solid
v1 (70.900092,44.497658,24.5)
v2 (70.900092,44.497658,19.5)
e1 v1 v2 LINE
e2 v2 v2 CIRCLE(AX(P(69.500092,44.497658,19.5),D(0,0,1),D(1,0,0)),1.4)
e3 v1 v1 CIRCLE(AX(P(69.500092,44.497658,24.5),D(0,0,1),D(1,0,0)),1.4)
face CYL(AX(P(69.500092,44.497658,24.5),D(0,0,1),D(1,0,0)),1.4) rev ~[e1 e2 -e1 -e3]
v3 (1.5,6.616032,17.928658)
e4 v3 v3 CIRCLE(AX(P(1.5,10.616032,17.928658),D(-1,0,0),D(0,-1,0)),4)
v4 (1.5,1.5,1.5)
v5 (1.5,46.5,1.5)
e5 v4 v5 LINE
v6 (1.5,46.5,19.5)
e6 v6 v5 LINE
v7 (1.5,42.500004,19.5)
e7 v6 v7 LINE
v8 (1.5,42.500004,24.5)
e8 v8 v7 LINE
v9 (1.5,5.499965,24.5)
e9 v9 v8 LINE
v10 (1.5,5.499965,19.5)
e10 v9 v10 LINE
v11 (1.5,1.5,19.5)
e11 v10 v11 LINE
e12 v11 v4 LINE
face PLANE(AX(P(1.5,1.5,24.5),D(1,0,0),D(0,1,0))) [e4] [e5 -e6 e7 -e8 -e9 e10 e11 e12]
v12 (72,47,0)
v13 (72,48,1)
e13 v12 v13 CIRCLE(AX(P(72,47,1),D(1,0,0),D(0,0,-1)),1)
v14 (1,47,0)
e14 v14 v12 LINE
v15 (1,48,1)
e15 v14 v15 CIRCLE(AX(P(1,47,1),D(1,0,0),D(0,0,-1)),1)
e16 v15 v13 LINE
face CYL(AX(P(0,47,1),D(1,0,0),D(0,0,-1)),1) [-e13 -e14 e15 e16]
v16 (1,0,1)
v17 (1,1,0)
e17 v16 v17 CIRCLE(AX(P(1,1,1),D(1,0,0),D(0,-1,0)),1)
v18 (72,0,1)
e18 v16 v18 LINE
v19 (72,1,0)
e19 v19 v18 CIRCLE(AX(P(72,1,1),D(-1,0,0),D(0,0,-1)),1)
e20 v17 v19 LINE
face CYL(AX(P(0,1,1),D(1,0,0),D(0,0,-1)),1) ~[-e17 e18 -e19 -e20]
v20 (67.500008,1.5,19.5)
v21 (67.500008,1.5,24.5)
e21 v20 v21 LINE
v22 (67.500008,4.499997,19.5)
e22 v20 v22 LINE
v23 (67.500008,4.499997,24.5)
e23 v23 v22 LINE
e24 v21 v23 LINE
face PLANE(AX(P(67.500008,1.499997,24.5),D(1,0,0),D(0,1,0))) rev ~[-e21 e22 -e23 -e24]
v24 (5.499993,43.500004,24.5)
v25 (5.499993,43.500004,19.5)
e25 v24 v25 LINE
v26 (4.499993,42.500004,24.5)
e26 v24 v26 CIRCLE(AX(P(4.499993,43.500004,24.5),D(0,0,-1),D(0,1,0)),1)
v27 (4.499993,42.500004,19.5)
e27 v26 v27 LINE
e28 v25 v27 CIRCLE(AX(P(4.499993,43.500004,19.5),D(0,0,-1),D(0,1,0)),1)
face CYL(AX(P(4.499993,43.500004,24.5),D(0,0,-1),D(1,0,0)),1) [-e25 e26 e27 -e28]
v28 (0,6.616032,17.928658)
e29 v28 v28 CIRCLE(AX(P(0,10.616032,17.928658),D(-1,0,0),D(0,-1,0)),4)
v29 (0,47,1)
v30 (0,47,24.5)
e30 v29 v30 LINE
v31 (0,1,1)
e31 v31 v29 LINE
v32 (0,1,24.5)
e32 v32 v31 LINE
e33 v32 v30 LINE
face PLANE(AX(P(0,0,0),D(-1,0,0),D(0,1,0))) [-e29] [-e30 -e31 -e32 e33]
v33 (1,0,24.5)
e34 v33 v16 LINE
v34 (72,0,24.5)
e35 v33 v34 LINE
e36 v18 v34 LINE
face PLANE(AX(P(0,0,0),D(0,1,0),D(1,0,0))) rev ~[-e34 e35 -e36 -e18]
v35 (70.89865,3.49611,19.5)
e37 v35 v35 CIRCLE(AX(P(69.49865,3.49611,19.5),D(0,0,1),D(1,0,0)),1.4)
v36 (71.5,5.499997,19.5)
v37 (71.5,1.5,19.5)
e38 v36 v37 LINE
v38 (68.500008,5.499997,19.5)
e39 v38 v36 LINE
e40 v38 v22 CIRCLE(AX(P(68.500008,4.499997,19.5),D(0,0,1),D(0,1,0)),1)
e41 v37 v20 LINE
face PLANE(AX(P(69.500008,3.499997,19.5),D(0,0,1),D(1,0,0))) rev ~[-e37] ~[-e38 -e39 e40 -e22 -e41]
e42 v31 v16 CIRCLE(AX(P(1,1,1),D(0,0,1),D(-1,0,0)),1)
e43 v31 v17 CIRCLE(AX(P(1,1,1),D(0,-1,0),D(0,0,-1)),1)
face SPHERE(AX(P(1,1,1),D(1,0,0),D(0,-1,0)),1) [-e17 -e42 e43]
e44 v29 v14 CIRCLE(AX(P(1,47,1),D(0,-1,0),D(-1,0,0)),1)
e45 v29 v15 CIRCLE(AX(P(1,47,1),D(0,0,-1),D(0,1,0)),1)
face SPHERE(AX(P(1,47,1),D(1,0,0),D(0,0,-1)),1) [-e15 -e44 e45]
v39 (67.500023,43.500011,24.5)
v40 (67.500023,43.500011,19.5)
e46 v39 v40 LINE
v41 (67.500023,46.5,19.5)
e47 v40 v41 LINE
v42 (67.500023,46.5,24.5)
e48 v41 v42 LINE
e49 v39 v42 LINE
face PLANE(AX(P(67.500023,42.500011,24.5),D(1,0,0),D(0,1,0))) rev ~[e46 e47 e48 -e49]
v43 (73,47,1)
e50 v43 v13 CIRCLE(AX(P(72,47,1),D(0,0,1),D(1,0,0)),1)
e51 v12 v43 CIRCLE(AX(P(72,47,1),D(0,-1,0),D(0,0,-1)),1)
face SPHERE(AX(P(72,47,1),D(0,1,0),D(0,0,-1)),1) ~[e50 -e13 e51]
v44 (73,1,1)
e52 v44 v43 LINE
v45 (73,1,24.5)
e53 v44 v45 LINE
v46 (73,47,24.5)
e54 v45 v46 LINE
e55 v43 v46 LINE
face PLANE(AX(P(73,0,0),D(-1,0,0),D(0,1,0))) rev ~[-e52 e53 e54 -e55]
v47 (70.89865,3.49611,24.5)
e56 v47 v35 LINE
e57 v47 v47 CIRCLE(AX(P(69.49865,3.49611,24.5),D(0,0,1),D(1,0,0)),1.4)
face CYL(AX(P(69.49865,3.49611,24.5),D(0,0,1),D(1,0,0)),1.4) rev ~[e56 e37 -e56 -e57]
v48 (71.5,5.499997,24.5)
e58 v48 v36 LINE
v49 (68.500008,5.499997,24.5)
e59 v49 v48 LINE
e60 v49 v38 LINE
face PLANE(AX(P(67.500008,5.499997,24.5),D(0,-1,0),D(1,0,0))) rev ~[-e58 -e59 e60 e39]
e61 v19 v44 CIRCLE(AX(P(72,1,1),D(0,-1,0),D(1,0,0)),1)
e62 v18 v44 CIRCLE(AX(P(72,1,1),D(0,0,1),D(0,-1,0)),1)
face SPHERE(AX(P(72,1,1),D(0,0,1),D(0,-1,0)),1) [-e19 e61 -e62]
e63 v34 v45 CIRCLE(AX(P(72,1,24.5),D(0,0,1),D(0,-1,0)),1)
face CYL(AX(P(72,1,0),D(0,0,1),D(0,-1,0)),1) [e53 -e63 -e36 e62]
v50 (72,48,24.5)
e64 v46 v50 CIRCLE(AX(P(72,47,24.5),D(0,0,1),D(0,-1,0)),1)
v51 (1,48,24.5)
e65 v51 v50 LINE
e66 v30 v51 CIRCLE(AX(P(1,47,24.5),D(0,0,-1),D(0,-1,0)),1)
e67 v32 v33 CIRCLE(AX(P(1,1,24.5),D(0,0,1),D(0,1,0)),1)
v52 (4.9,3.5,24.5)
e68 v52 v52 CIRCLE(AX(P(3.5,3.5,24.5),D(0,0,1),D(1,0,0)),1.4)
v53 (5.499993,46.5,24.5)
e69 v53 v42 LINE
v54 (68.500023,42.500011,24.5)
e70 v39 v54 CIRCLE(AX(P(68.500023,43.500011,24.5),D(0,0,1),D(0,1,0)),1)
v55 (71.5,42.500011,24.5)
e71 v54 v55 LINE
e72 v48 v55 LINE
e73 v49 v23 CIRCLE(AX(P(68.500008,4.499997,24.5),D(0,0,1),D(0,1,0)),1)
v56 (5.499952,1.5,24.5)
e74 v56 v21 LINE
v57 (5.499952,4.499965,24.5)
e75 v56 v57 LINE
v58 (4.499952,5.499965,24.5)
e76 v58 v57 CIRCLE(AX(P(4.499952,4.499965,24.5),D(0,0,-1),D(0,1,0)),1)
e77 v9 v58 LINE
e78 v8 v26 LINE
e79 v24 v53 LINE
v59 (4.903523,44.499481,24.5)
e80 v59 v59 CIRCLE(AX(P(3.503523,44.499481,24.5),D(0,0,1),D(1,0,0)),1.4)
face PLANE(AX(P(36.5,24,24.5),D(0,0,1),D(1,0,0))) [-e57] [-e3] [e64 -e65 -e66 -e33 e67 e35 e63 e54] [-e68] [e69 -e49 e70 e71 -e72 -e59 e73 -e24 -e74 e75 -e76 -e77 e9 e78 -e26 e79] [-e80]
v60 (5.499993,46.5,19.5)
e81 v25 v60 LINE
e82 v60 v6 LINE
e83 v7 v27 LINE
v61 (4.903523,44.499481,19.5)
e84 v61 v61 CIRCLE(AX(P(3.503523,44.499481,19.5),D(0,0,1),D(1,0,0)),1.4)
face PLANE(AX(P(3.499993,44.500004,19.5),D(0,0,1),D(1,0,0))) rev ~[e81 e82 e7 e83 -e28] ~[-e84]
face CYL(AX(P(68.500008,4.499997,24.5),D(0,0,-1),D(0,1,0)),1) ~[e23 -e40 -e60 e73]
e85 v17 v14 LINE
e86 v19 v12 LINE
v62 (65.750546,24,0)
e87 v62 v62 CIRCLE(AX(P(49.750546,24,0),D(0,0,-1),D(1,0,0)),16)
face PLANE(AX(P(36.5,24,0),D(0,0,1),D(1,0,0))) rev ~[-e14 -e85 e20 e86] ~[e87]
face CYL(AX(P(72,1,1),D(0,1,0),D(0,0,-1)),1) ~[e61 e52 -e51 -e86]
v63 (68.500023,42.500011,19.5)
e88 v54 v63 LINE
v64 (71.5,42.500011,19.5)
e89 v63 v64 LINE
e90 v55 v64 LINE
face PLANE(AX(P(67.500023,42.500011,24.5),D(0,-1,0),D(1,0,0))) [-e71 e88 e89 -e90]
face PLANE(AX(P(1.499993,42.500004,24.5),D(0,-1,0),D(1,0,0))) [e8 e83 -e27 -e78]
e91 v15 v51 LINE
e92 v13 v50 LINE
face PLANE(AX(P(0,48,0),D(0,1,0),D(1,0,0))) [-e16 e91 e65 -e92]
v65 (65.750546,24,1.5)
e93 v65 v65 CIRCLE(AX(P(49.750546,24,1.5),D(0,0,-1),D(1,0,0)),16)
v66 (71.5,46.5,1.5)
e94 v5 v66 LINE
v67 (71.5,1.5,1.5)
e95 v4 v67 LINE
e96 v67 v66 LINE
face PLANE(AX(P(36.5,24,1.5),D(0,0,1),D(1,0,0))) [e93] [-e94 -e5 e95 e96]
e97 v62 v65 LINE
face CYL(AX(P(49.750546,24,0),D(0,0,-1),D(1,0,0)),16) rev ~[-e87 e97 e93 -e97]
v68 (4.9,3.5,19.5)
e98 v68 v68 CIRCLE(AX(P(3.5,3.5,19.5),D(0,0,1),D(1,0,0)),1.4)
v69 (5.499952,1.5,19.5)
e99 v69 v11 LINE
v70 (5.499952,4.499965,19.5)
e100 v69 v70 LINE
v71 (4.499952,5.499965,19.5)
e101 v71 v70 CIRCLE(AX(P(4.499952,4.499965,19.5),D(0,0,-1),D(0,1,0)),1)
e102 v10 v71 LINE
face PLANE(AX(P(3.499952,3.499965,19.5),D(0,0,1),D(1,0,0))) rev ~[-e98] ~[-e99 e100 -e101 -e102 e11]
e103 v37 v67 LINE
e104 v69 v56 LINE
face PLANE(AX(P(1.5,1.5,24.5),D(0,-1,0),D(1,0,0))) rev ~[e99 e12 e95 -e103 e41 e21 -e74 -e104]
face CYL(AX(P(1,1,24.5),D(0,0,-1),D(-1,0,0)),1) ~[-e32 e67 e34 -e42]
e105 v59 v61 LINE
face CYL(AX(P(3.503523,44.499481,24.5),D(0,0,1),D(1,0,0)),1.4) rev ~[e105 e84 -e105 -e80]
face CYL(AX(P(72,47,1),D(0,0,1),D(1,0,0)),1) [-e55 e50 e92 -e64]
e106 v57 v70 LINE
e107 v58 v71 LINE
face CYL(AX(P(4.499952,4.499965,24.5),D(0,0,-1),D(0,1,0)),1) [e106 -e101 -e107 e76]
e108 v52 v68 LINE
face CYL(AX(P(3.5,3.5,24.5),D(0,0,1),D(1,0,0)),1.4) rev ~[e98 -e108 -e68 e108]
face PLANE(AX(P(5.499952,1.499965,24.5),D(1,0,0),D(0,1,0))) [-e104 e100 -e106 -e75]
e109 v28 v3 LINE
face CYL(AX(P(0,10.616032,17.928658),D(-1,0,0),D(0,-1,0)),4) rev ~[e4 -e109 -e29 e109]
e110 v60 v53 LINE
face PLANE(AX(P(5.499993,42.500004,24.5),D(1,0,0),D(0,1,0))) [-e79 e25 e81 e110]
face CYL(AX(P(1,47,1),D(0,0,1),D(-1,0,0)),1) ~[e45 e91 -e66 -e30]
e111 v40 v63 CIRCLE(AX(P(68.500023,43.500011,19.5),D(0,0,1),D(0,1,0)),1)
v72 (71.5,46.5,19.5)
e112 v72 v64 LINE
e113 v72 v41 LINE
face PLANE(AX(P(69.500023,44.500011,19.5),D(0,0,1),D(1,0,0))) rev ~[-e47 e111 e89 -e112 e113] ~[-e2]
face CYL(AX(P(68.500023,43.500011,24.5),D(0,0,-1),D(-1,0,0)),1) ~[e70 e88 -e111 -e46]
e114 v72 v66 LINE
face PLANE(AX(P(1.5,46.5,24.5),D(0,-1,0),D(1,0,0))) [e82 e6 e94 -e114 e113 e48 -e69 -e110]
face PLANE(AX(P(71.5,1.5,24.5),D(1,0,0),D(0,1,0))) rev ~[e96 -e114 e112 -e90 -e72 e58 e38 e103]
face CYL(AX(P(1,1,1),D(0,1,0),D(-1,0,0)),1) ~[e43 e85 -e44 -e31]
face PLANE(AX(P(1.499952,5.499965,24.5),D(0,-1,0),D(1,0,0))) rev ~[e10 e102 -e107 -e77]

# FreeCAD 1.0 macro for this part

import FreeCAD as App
import Part
import Sketcher

V = App.Vector
Q = App.Units.Quantity


def edges_at(feature, points):
    """Names of the edges that pass closest to the given points."""
    edges = feature.Shape.Edges
    near = lambda p: min(range(len(edges)), key=lambda i: edges[i].distToShape(Part.Vertex(*p))[0])
    return sorted({f"Edge{near(p) + 1}" for p in points})


def add_polygon(sketch, points):
    """Adds a closed chain of lines whose ends are joined by coincident constraints."""
    first, n = sketch.GeometryCount, len(points)
    for a, b in zip(points, points[1:] + points[:1]):
        sketch.addGeometry(Part.LineSegment(App.Vector(*a, 0), App.Vector(*b, 0)), False)
    for i in range(n):
        sketch.addConstraint(Sketcher.Constraint("Coincident", first + i, 2, first + (i + 1) % n, 1))

doc = App.newDocument("Part")
body = doc.addObject("PartDesign::Body", "Body")

sketch1 = body.newObject("Sketcher::SketchObject", "Sketch")
sketch1.AttachmentSupport = (doc.getObject("XY_Plane"), [""])
sketch1.MapMode = "FlatFace"
add_polygon(sketch1, [(0, 48), (0, 0), (73, 0), (73, 48)])
sketch1.addConstraint([
    Sketcher.Constraint("Vertical", 0),
    Sketcher.Constraint("Horizontal", 1),
    Sketcher.Constraint("Vertical", 2),
    Sketcher.Constraint("Horizontal", 3),
    Sketcher.Constraint("Coincident", 0, 2, -1, 1),
    Sketcher.Constraint("DistanceX", 1, 1, 1, 2, Q("73 mm")),
    Sketcher.Constraint("DistanceY", 0, 2, 0, 1, Q("48 mm")),
])
pad1 = body.newObject("PartDesign::Pad", "Pad")
pad1.Profile = sketch1
pad1.Length = 24.5

sketch2 = body.newObject("Sketcher::SketchObject", "Sketch001")
sketch2.AttachmentSupport = (doc.getObject("XY_Plane"), [""])
sketch2.MapMode = "FlatFace"
sketch2.AttachmentOffset = App.Placement(V(0, 0, 24.5), App.Rotation())
add_polygon(sketch2, [(2, 46), (2, 2), (72, 2), (72, 46)])
sketch2.addConstraint([
    Sketcher.Constraint("Vertical", 0),
    Sketcher.Constraint("Horizontal", 1),
    Sketcher.Constraint("Vertical", 2),
    Sketcher.Constraint("Horizontal", 3),
    Sketcher.Constraint("DistanceX", 1, 1, 1, 2, Q("70 mm")),
    Sketcher.Constraint("DistanceY", 0, 2, 0, 1, Q("45 mm")),
    Sketcher.Constraint("DistanceX", -1, 1, 0, 2, Q("1.5 mm")),
    Sketcher.Constraint("DistanceY", -1, 1, 0, 2, Q("1.5 mm")),
])
pocket1 = body.newObject("PartDesign::Pocket", "Pocket")
pocket1.Profile = sketch2
pocket1.Length = 23
doc.recompute()

fillet = body.newObject("PartDesign::Fillet", "Fillet")
fillet.Base = (pocket1, edges_at(pocket1, [(73, 0, 12.25)]))
fillet.Radius = 1
doc.recompute()

fillet2 = body.newObject("PartDesign::Fillet", "Fillet001")
fillet2.Base = (fillet, edges_at(fillet, [(73, 24.5, 0)]))
fillet2.Radius = 1
doc.recompute()

fillet3 = body.newObject("PartDesign::Fillet", "Fillet002")
fillet3.Base = (fillet2, edges_at(fillet2, [(36, 48, 0)]))
fillet3.Radius = 1
doc.recompute()

fillet4 = body.newObject("PartDesign::Fillet", "Fillet003")
fillet4.Base = (fillet3, edges_at(fillet3, [(0, 24, 0)]))
fillet4.Radius = 1

sketch3 = body.newObject("Sketcher::SketchObject", "Sketch002")
sketch3.AttachmentSupport = (doc.getObject("XY_Plane"), [""])
sketch3.MapMode = "FlatFace"
sketch3.AttachmentOffset = App.Placement(V(0, 0, 24.5), App.Rotation())
add_polygon(sketch3, [(1.5, 5.5), (1.5, 1.5), (5.5, 1.5), (5.5, 5.5)])
sketch3.addConstraint([
    Sketcher.Constraint("Vertical", 0),
    Sketcher.Constraint("Horizontal", 1),
    Sketcher.Constraint("Vertical", 2),
    Sketcher.Constraint("Horizontal", 3),
    Sketcher.Constraint("Equal", 3, 0),
    Sketcher.Constraint("DistanceX", 1, 1, 1, 2, Q("4 mm")),
    Sketcher.Constraint("DistanceX", -1, 1, 0, 2, Q("1.499952 mm")),
    Sketcher.Constraint("DistanceY", -1, 1, 0, 2, Q("1.499965 mm")),
])
pad2 = body.newObject("PartDesign::Pad", "Pad001")
pad2.Profile = sketch3
pad2.Length = 5
pad2.Reversed = True
doc.recompute()

fillet5 = body.newObject("PartDesign::Fillet", "Fillet004")
fillet5.Base = (pad2, edges_at(pad2, [(5.5, 5.5, 22)]))
fillet5.Radius = 1

sketch4 = body.newObject("Sketcher::SketchObject", "Sketch003")
sketch4.AttachmentSupport = (doc.getObject("XY_Plane"), [""])
sketch4.MapMode = "FlatFace"
sketch4.AttachmentOffset = App.Placement(V(0, 0, 24.5), App.Rotation())
add_polygon(sketch4, [(1.5, 46.5), (1.5, 42.5), (5.5, 42.5), (5.5, 46.5)])
add_polygon(sketch4, [(67.5, 46.5), (67.5, 42.5), (71.5, 42.5), (71.5, 46.5)])
add_polygon(sketch4, [(67.5, 5.5), (67.5, 1.5), (71.5, 1.5), (71.5, 5.5)])
sketch4.addConstraint([
    Sketcher.Constraint("Vertical", 0),
    Sketcher.Constraint("Horizontal", 1),
    Sketcher.Constraint("Vertical", 2),
    Sketcher.Constraint("Horizontal", 3),
    Sketcher.Constraint("Vertical", 4),
    Sketcher.Constraint("Horizontal", 5),
    Sketcher.Constraint("Vertical", 6),
    Sketcher.Constraint("Horizontal", 7),
    Sketcher.Constraint("Vertical", 8),
    Sketcher.Constraint("Horizontal", 9),
    Sketcher.Constraint("Vertical", 10),
    Sketcher.Constraint("Horizontal", 11),
    Sketcher.Constraint("Equal", 3, 5),
    Sketcher.Constraint("Equal", 7, 9),
    Sketcher.Constraint("Equal", 11, 0),
    Sketcher.Constraint("Equal", 2, 4),
    Sketcher.Constraint("Equal", 6, 8),
    Sketcher.Constraint("DistanceX", 1, 1, 1, 2, Q("4 mm")),
    Sketcher.Constraint("DistanceY", -1, 1, 4, 2, Q("42.500011 mm")),
    Sketcher.Constraint("DistanceX", 1, 2, 4, 2, Q("62.00003 mm")),
    Sketcher.Constraint("DistanceX", -1, 1, 0, 2, Q("1.499993 mm")),
    Sketcher.Constraint("DistanceY", -1, 1, 0, 2, Q("42.500004 mm")),
    Sketcher.Constraint("DistanceX", -1, 1, 8, 2, Q("67.500008 mm")),
    Sketcher.Constraint("DistanceY", -1, 1, 8, 2, Q("1.499997 mm")),
])
pad3 = body.newObject("PartDesign::Pad", "Pad002")
pad3.Profile = sketch4
pad3.Length = 5
pad3.Reversed = True

sketch5 = body.newObject("Sketcher::SketchObject", "Sketch004")
sketch5.AttachmentSupport = (doc.getObject("XY_Plane"), [""])
sketch5.MapMode = "FlatFace"
sketch5.AttachmentOffset = App.Placement(V(0, 0, 24.5), App.Rotation())
sketch5.addGeometry([
    Part.Circle(V(3.5, 44.5, 0), V(0, 0, 1), 1.4),
    Part.Circle(V(69.5, 44.5, 0), V(0, 0, 1), 1.4),
], False)
sketch5.addConstraint([
    Sketcher.Constraint("Equal", 0, 1),
    Sketcher.Constraint("Diameter", 0, Q("2.8 mm")),
    Sketcher.Constraint("DistanceY", -1, 1, 0, 3, Q("44.499481 mm")),
    Sketcher.Constraint("DistanceX", -1, 1, 1, 3, Q("69.500092 mm")),
    Sketcher.Constraint("DistanceX", 0, 3, 1, 3, Q("65.996569 mm")),
    Sketcher.Constraint("DistanceY", -1, 1, 1, 3, Q("44.497658 mm")),
])
pocket2 = body.newObject("PartDesign::Pocket", "Pocket001")
pocket2.Profile = sketch5
pocket2.Length = 5
doc.recompute()

fillet6 = body.newObject("PartDesign::Fillet", "Fillet005")
fillet6.Base = (pocket2, edges_at(pocket2, [(67.5, 42.5, 22)]))
fillet6.Radius = 1
doc.recompute()

fillet7 = body.newObject("PartDesign::Fillet", "Fillet006")
fillet7.Base = (fillet6, edges_at(fillet6, [(5.5, 42.5, 22)]))
fillet7.Radius = 1

sketch6 = body.newObject("Sketcher::SketchObject", "Sketch005")
sketch6.AttachmentSupport = (doc.getObject("XY_Plane"), [""])
sketch6.MapMode = "FlatFace"
sketch6.AttachmentOffset = App.Placement(V(0, 0, 24.5), App.Rotation())
sketch6.addGeometry(Part.Circle(V(69.5, 3.5, 0), V(0, 0, 1), 1.4), False)
sketch6.addConstraint([
    Sketcher.Constraint("Diameter", 0, Q("2.8 mm")),
    Sketcher.Constraint("DistanceX", -1, 1, 0, 3, Q("69.49865 mm")),
    Sketcher.Constraint("DistanceY", -1, 1, 0, 3, Q("3.49611 mm")),
])
pocket3 = body.newObject("PartDesign::Pocket", "Pocket002")
pocket3.Profile = sketch6
pocket3.Length = 5
doc.recompute()

fillet8 = body.newObject("PartDesign::Fillet", "Fillet007")
fillet8.Base = (pocket3, edges_at(pocket3, [(67.5, 5.5, 22)]))
fillet8.Radius = 1

sketch7 = body.newObject("Sketcher::SketchObject", "Sketch006")
sketch7.AttachmentSupport = (doc.getObject("XY_Plane"), [""])
sketch7.MapMode = "FlatFace"
sketch7.AttachmentOffset = App.Placement(V(0, 0, 24.5), App.Rotation())
sketch7.addGeometry(Part.Circle(V(3.5, 3.5, 0), V(0, 0, 1), 1.4), False)
sketch7.addConstraint([
    Sketcher.Constraint("Diameter", 0, Q("2.8 mm")),
    Sketcher.Constraint("DistanceX", -1, 1, 0, 3, Q("3.5 mm")),
    Sketcher.Constraint("DistanceY", -1, 1, 0, 3, Q("3.5 mm")),
])
pocket4 = body.newObject("PartDesign::Pocket", "Pocket003")
pocket4.Profile = sketch7
pocket4.Length = 5

sketch8 = body.newObject("Sketcher::SketchObject", "Sketch007")
sketch8.AttachmentSupport = (doc.getObject("XY_Plane"), [""])
sketch8.MapMode = "FlatFace"
sketch8.addGeometry(Part.Circle(V(50, 24, 0), V(0, 0, 1), 16), False)
sketch8.addConstraint([
    Sketcher.Constraint("Diameter", 0, Q("32 mm")),
    Sketcher.Constraint("DistanceY", -1, 1, 0, 3, Q("24 mm")),
    Sketcher.Constraint("DistanceX", -1, 1, 0, 3, Q("49.750546 mm")),
])
pocket5 = body.newObject("PartDesign::Pocket", "Pocket004")
pocket5.Profile = sketch8
pocket5.Length = 5
pocket5.Reversed = True

sketch9 = body.newObject("Sketcher::SketchObject", "Sketch008")
sketch9.AttachmentSupport = (doc.getObject("YZ_Plane"), [""])
sketch9.MapMode = "FlatFace"
sketch9.addGeometry(Part.Circle(V(10.6, 17.9, 0), V(0, 0, 1), 4), False)
sketch9.addConstraint([
    Sketcher.Constraint("Diameter", 0, Q("8 mm")),
    Sketcher.Constraint("DistanceX", -1, 1, 0, 3, Q("10.616032 mm")),
    Sketcher.Constraint("DistanceY", -1, 1, 0, 3, Q("17.928658 mm")),
])
pocket6 = body.newObject("PartDesign::Pocket", "Pocket005")
pocket6.Profile = sketch9
pocket6.Length = 5
pocket6.Reversed = True

doc.recompute()
